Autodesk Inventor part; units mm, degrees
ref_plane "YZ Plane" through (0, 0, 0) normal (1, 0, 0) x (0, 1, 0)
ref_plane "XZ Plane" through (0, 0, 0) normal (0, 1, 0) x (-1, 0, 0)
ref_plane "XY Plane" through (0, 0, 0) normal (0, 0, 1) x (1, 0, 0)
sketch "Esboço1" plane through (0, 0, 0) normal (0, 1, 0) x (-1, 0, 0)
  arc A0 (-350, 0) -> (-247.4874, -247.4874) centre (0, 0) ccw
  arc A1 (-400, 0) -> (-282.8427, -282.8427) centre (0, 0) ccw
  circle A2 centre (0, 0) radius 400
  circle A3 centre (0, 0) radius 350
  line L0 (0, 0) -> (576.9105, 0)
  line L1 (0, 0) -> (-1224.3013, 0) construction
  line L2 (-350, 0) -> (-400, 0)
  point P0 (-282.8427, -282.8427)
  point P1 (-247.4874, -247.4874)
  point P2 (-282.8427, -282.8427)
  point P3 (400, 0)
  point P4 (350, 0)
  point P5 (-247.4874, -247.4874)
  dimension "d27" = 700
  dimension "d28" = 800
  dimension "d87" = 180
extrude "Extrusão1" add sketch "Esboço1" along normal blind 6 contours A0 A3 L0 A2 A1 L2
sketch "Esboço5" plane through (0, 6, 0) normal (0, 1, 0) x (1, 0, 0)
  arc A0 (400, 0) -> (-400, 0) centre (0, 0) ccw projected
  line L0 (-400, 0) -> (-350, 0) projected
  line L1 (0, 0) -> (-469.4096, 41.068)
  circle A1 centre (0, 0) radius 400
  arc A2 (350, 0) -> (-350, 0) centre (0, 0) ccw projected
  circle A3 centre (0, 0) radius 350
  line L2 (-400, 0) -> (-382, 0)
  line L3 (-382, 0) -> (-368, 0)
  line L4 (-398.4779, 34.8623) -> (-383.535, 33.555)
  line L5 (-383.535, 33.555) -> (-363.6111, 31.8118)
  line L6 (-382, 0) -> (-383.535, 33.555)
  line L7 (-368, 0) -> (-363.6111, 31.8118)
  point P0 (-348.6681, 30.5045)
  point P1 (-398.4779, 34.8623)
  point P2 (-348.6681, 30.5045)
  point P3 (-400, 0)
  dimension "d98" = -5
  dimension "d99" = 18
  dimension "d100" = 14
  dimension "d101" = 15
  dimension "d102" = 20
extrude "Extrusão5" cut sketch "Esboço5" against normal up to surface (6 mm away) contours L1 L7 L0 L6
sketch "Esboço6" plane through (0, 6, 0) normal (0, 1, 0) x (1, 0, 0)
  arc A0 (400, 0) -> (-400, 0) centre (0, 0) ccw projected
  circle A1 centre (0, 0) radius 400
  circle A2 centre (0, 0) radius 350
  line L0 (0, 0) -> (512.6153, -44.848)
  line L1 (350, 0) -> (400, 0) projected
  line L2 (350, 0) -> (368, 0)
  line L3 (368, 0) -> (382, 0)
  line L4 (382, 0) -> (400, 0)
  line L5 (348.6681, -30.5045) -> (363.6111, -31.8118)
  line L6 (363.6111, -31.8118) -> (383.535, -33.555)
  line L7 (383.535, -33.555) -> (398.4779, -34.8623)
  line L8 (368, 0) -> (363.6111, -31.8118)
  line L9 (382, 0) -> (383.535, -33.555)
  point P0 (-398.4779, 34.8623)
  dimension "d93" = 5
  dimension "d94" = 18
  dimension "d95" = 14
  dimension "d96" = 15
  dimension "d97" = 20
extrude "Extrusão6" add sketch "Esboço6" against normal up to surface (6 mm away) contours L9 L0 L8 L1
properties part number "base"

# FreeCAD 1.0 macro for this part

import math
import FreeCAD as App
import Part
import Sketcher

V = App.Vector
Q = App.Units.Quantity

doc = App.newDocument("Part")
params = doc.addObject("Spreadsheet::Sheet", "Params")
for row, (alias, value) in enumerate([
    ("sketch1_radius", "350 mm"),
    ("sketch1_radius2", "400 mm"),
    ("pad1_length", "6 mm"),
    ("sketch2_width", "14 mm"),
    ("sketch2_length", "20 mm"),
    ("sketch2_length2", "33.59 mm"),
    ("pocket1_length", "6 mm"),
    ("sketch3_width", "14 mm"),
    ("sketch3_length", "20 mm"),
    ("sketch3_length2", "33.59 mm"),
    ("pad2_length", "6 mm"),
], start=1):
    params.set(f"A{row}", alias)
    params.set(f"B{row}", "=" + value)
    params.setAlias(f"B{row}", alias)

body = doc.addObject("PartDesign::Body", "Body")

sketch1 = body.newObject("Sketcher::SketchObject", "Sketch")
sketch1.AttachmentSupport = (doc.getObject("XZ_Plane"), [""])
sketch1.MapMode = "FlatFace"
sketch1.addGeometry(Part.ArcOfCircle(Part.Circle(V(0, 0, 0), V(0, 0, 1), 350), math.radians(-45), math.radians(0)), False)
sketch1.addGeometry(Part.LineSegment(V(350, 0, 0), V(400, 0, 0)), False)
sketch1.addGeometry(Part.ArcOfCircle(Part.Circle(V(0, 0, 0), V(0, 0, 1), 400), math.radians(-45), math.radians(0)), False)
sketch1.addGeometry(Part.ArcOfCircle(Part.Circle(V(0, 0, 0), V(0, 0, 1), 400), math.radians(180), math.radians(315)), False)
sketch1.addGeometry(Part.LineSegment(V(-400, 0, 0), V(-350, 0, 0)), False)
sketch1.addGeometry(Part.ArcOfCircle(Part.Circle(V(0, 0, 0), V(0, 0, 1), 350), math.radians(180), math.radians(315)), False)
sketch1.addConstraint(Sketcher.Constraint("Coincident", 0, 2, 1, 1))
sketch1.addConstraint(Sketcher.Constraint("Coincident", 1, 2, 2, 2))
sketch1.addConstraint(Sketcher.Constraint("Tangent", 2, 1, 3, 2))
sketch1.addConstraint(Sketcher.Constraint("Coincident", 3, 1, 4, 1))
sketch1.addConstraint(Sketcher.Constraint("Coincident", 4, 2, 5, 1))
sketch1.addConstraint(Sketcher.Constraint("Tangent", 5, 2, 0, 1))
sketch1.addConstraint(Sketcher.Constraint("Horizontal", 1))
sketch1.addConstraint(Sketcher.Constraint("Horizontal", 4))
sketch1.addConstraint(Sketcher.Constraint("Coincident", 0, 3, -1, 1))
sketch1.addConstraint(Sketcher.Constraint("Coincident", 2, 3, -1, 1))
sketch1.addConstraint(Sketcher.Constraint("Equal", 2, 3))
sketch1.addConstraint(Sketcher.Constraint("Equal", 0, 5))
sketch1.addConstraint(Sketcher.Constraint("PointOnObject", 0, 2, -1))
sketch1.addConstraint(Sketcher.Constraint("PointOnObject", 4, 2, -1))
sketch1.addConstraint(Sketcher.Constraint("Radius", 0, 350.0))
sketch1.addConstraint(Sketcher.Constraint("Radius", 2, 400.0))
sketch1.addConstraint(Sketcher.Constraint("DistanceX", -1, 1, 2, 1, 282.8427))
sketch1.addConstraint(Sketcher.Constraint("DistanceX", -1, 1, 5, 2, 247.4874))
sketch1.setExpression("Constraints[14]", "Params.sketch1_radius")
sketch1.setExpression("Constraints[15]", "Params.sketch1_radius2")
pad1 = body.newObject("PartDesign::Pad", "Pad")
pad1.Profile = sketch1
pad1.setExpression("Length", "Params.pad1_length")
pad1.Reversed = True

sketch2 = body.newObject("Sketcher::SketchObject", "Sketch001")
sketch2.AttachmentSupport = (doc.getObject("XZ_Plane"), [""])
sketch2.MapMode = "FlatFace"
sketch2.AttachmentOffset = App.Placement(V(0, 0, -6), App.Rotation())
sketch2.addGeometry(Part.LineSegment(V(-363.611097, -31.811835, 0), V(-383.535004, -33.55495, 0)), False)
sketch2.addGeometry(Part.LineSegment(V(-383.535, -33.555, 0), V(-382, 0, 0)), False)
sketch2.addGeometry(Part.LineSegment(V(-382, 0, 0), V(-368, 0, 0)), False)
sketch2.addGeometry(Part.LineSegment(V(-368, 0, 0), V(-363.6111, -31.8118, 0)), False)
sketch2.addConstraint(Sketcher.Constraint("Coincident", 0, 2, 1, 1))
sketch2.addConstraint(Sketcher.Constraint("Coincident", 1, 2, 2, 1))
sketch2.addConstraint(Sketcher.Constraint("Coincident", 2, 2, 3, 1))
sketch2.addConstraint(Sketcher.Constraint("Coincident", 3, 2, 0, 1))
sketch2.addConstraint(Sketcher.Constraint("Horizontal", 2))
sketch2.addConstraint(Sketcher.Constraint("PointOnObject", 1, 2, -1))
sketch2.addConstraint(Sketcher.Constraint("DistanceX", 2, 1, 2, 2, 14.0))
sketch2.addConstraint(Sketcher.Constraint("Distance", 0, 20.0))
sketch2.addConstraint(Sketcher.Constraint("Angle", 0, Q("-175 deg")))
sketch2.addConstraint(Sketcher.Constraint("DistanceX", 1, 2, -1, 1, 382.0))
sketch2.addConstraint(Sketcher.Constraint("Angle", 1, Q("87.3808 deg")))
sketch2.addConstraint(Sketcher.Constraint("Distance", 1, 33.59))
sketch2.setExpression("Constraints[6]", "Params.sketch2_width")
sketch2.setExpression("Constraints[7]", "Params.sketch2_length")
sketch2.setExpression("Constraints[11]", "Params.sketch2_length2")
pocket1 = body.newObject("PartDesign::Pocket", "Pocket")
pocket1.Profile = sketch2
pocket1.setExpression("Length", "Params.pocket1_length")
pocket1.Reversed = True

sketch3 = body.newObject("Sketcher::SketchObject", "Sketch002")
sketch3.AttachmentSupport = (doc.getObject("XZ_Plane"), [""])
sketch3.MapMode = "FlatFace"
sketch3.AttachmentOffset = App.Placement(V(0, 0, -6), App.Rotation())
sketch3.addGeometry(Part.LineSegment(V(383.535, 33.555, 0), V(382, 0, 0)), False)
sketch3.addGeometry(Part.LineSegment(V(382, 0, 0), V(368, 0, 0)), False)
sketch3.addGeometry(Part.LineSegment(V(368, 0, 0), V(363.6111, 31.8118, 0)), False)
sketch3.addGeometry(Part.LineSegment(V(363.611097, 31.811829, 0), V(383.535005, 33.554944, 0)), False)
sketch3.addConstraint(Sketcher.Constraint("Coincident", 0, 2, 1, 1))
sketch3.addConstraint(Sketcher.Constraint("Coincident", 1, 2, 2, 1))
sketch3.addConstraint(Sketcher.Constraint("Coincident", 2, 2, 3, 1))
sketch3.addConstraint(Sketcher.Constraint("Coincident", 3, 2, 0, 1))
sketch3.addConstraint(Sketcher.Constraint("Horizontal", 1))
sketch3.addConstraint(Sketcher.Constraint("PointOnObject", 0, 2, -1))
sketch3.addConstraint(Sketcher.Constraint("DistanceX", 1, 2, 1, 1, 14.0))
sketch3.addConstraint(Sketcher.Constraint("Angle", 3, Q("5 deg")))
sketch3.addConstraint(Sketcher.Constraint("Distance", 3, 20.0))
sketch3.addConstraint(Sketcher.Constraint("DistanceX", -1, 1, 0, 2, 382.0))
sketch3.addConstraint(Sketcher.Constraint("Angle", 0, Q("-92.6192 deg")))
sketch3.addConstraint(Sketcher.Constraint("Distance", 0, 33.59))
sketch3.setExpression("Constraints[6]", "Params.sketch3_width")
sketch3.setExpression("Constraints[8]", "Params.sketch3_length")
sketch3.setExpression("Constraints[11]", "Params.sketch3_length2")
pad2 = body.newObject("PartDesign::Pad", "Pad001")
pad2.Profile = sketch3
pad2.setExpression("Length", "Params.pad2_length")

doc.recompute()
